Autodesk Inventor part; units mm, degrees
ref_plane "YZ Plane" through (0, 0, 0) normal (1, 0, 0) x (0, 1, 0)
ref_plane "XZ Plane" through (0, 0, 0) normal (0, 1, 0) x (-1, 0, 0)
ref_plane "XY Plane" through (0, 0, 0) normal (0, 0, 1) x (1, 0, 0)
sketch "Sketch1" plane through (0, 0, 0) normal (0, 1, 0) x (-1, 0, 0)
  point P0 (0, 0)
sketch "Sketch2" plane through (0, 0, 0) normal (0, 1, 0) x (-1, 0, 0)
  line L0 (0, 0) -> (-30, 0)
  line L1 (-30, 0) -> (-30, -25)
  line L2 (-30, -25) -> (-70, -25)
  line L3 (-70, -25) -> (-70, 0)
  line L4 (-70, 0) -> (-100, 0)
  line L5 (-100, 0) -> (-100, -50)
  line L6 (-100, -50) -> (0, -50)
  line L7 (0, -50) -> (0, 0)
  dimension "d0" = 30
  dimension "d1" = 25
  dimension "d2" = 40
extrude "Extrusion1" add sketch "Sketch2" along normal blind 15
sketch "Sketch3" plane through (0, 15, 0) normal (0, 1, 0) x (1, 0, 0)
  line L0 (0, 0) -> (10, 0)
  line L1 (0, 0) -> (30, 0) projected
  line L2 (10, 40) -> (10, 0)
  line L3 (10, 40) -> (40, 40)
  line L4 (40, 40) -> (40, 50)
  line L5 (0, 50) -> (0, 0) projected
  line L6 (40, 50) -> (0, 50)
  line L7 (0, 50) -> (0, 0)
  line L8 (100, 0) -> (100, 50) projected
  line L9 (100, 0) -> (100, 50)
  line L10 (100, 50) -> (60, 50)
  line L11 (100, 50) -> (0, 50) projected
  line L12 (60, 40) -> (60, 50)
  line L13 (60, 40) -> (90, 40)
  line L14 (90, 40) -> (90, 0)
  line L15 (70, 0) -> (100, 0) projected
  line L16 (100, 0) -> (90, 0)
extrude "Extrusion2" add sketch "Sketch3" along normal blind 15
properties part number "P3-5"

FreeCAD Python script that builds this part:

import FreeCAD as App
import Part
import Sketcher
from FreeCAD import Vector

doc = App.newDocument("Part")
body = doc.addObject("PartDesign::Body", "Body")

# Sketch on XZ plane
sketch1 = body.newObject("Sketcher::SketchObject", "Sketch")
sketch1.AttachmentSupport = (doc.getObject("XZ_Plane"), [""])
sketch1.MapMode = "FlatFace"
sketch1.addGeometry([
    Part.LineSegment(Vector(0, -50, 0), Vector(0, 0, 0)),  # 0
    Part.LineSegment(Vector(0, 0, 0), Vector(30, 0, 0)),  # 1
    Part.LineSegment(Vector(30, 0, 0), Vector(30, -25, 0)),  # 2
    Part.LineSegment(Vector(30, -25, 0), Vector(70, -25, 0)),  # 3
    Part.LineSegment(Vector(70, -25, 0), Vector(70, 0, 0)),  # 4
    Part.LineSegment(Vector(70, 0, 0), Vector(100, 0, 0)),  # 5
    Part.LineSegment(Vector(100, 0, 0), Vector(100, -50, 0)),  # 6
    Part.LineSegment(Vector(100, -50, 0), Vector(0, -50, 0)),  # 7
], False)
sketch1.addConstraint([
    Sketcher.Constraint("Coincident", 0, 2, 1, 1),
    Sketcher.Constraint("Coincident", 1, 2, 2, 1),
    Sketcher.Constraint("Coincident", 2, 2, 3, 1),
    Sketcher.Constraint("Coincident", 3, 2, 4, 1),
    Sketcher.Constraint("Coincident", 4, 2, 5, 1),
    Sketcher.Constraint("Coincident", 5, 2, 6, 1),
    Sketcher.Constraint("Coincident", 6, 2, 7, 1),
    Sketcher.Constraint("Coincident", 7, 2, 0, 1),
    Sketcher.Constraint("Vertical", 0),
    Sketcher.Constraint("Horizontal", 1),
    Sketcher.Constraint("Vertical", 2),
    Sketcher.Constraint("Horizontal", 3),
    Sketcher.Constraint("Vertical", 4),
    Sketcher.Constraint("Horizontal", 5),
    Sketcher.Constraint("Vertical", 6),
    Sketcher.Constraint("Horizontal", 7),
    Sketcher.Constraint("Coincident", 0, 2, -1, 1),
    Sketcher.Constraint("PointOnObject", 4, 2, -1),
    Sketcher.Constraint("Equal", 1, 5),
    Sketcher.Constraint("DistanceX", 1, 1, 1, 2, 30.0),
    Sketcher.Constraint("DistanceX", 3, 1, 3, 2, 40.0),
    Sketcher.Constraint("DistanceY", 2, 2, 2, 1, 25.0),
    Sketcher.Constraint("DistanceY", 6, 2, 3, 2, 25.0),
])
pad1 = body.newObject("PartDesign::Pad", "Pad")
pad1.Profile = sketch1
pad1.Length = 15
pad1.Reversed = True

# Sketch on XZ plane
sketch2 = body.newObject("Sketcher::SketchObject", "Sketch001")
sketch2.AttachmentSupport = (doc.getObject("XZ_Plane"), [""])
sketch2.MapMode = "FlatFace"
sketch2.AttachmentOffset = App.Placement(Vector(0, 0, -15), App.Rotation())
sketch2.addGeometry([
    Part.LineSegment(Vector(0, -50, 0), Vector(0, 0, 0)),  # 0
    Part.LineSegment(Vector(0, 0, 0), Vector(10, 0, 0)),  # 1
    Part.LineSegment(Vector(10, 0, 0), Vector(10, -40, 0)),  # 2
    Part.LineSegment(Vector(10, -40, 0), Vector(40, -40, 0)),  # 3
    Part.LineSegment(Vector(40, -40, 0), Vector(40, -50, 0)),  # 4
    Part.LineSegment(Vector(40, -50, 0), Vector(0, -50, 0)),  # 5
    Part.LineSegment(Vector(100, -50, 0), Vector(60, -50, 0)),  # 6
    Part.LineSegment(Vector(60, -50, 0), Vector(60, -40, 0)),  # 7
    Part.LineSegment(Vector(60, -40, 0), Vector(90, -40, 0)),  # 8
    Part.LineSegment(Vector(90, -40, 0), Vector(90, 0, 0)),  # 9
    Part.LineSegment(Vector(90, 0, 0), Vector(100, 0, 0)),  # 10
    Part.LineSegment(Vector(100, 0, 0), Vector(100, -50, 0)),  # 11
], False)
sketch2.addConstraint([
    Sketcher.Constraint("Coincident", 0, 2, 1, 1),
    Sketcher.Constraint("Coincident", 1, 2, 2, 1),
    Sketcher.Constraint("Coincident", 2, 2, 3, 1),
    Sketcher.Constraint("Coincident", 3, 2, 4, 1),
    Sketcher.Constraint("Coincident", 4, 2, 5, 1),
    Sketcher.Constraint("Coincident", 5, 2, 0, 1),
    Sketcher.Constraint("Coincident", 6, 2, 7, 1),
    Sketcher.Constraint("Coincident", 7, 2, 8, 1),
    Sketcher.Constraint("Coincident", 8, 2, 9, 1),
    Sketcher.Constraint("Coincident", 9, 2, 10, 1),
    Sketcher.Constraint("Coincident", 10, 2, 11, 1),
    Sketcher.Constraint("Coincident", 11, 2, 6, 1),
    Sketcher.Constraint("Vertical", 0),
    Sketcher.Constraint("Horizontal", 1),
    Sketcher.Constraint("Vertical", 2),
    Sketcher.Constraint("Horizontal", 3),
    Sketcher.Constraint("Vertical", 4),
    Sketcher.Constraint("Horizontal", 5),
    Sketcher.Constraint("Horizontal", 6),
    Sketcher.Constraint("Vertical", 7),
    Sketcher.Constraint("Horizontal", 8),
    Sketcher.Constraint("Vertical", 9),
    Sketcher.Constraint("Horizontal", 10),
    Sketcher.Constraint("Vertical", 11),
    Sketcher.Constraint("Coincident", 0, 2, -1, 1),
    Sketcher.Constraint("PointOnObject", 9, 2, -1),
    Sketcher.Constraint("Horizontal", 5, 2, 6, 2),
    Sketcher.Constraint("Horizontal", 3, 2, 7, 2),
    Sketcher.Constraint("Equal", 5, 6),
    Sketcher.Constraint("Equal", 3, 8),
    Sketcher.Constraint("Equal", 6, 2),
    Sketcher.Constraint("Equal", 10, 4),
    Sketcher.Constraint("DistanceX", 1, 1, 1, 2, 10.0),
    Sketcher.Constraint("DistanceX", 3, 1, 3, 2, 30.0),
    Sketcher.Constraint("DistanceX", -1, 1, 6, 2, 60.0),
])
pad2 = body.newObject("PartDesign::Pad", "Pad001")
pad2.Profile = sketch2
pad2.Length = 15
pad2.Reversed = True

doc.recompute()
